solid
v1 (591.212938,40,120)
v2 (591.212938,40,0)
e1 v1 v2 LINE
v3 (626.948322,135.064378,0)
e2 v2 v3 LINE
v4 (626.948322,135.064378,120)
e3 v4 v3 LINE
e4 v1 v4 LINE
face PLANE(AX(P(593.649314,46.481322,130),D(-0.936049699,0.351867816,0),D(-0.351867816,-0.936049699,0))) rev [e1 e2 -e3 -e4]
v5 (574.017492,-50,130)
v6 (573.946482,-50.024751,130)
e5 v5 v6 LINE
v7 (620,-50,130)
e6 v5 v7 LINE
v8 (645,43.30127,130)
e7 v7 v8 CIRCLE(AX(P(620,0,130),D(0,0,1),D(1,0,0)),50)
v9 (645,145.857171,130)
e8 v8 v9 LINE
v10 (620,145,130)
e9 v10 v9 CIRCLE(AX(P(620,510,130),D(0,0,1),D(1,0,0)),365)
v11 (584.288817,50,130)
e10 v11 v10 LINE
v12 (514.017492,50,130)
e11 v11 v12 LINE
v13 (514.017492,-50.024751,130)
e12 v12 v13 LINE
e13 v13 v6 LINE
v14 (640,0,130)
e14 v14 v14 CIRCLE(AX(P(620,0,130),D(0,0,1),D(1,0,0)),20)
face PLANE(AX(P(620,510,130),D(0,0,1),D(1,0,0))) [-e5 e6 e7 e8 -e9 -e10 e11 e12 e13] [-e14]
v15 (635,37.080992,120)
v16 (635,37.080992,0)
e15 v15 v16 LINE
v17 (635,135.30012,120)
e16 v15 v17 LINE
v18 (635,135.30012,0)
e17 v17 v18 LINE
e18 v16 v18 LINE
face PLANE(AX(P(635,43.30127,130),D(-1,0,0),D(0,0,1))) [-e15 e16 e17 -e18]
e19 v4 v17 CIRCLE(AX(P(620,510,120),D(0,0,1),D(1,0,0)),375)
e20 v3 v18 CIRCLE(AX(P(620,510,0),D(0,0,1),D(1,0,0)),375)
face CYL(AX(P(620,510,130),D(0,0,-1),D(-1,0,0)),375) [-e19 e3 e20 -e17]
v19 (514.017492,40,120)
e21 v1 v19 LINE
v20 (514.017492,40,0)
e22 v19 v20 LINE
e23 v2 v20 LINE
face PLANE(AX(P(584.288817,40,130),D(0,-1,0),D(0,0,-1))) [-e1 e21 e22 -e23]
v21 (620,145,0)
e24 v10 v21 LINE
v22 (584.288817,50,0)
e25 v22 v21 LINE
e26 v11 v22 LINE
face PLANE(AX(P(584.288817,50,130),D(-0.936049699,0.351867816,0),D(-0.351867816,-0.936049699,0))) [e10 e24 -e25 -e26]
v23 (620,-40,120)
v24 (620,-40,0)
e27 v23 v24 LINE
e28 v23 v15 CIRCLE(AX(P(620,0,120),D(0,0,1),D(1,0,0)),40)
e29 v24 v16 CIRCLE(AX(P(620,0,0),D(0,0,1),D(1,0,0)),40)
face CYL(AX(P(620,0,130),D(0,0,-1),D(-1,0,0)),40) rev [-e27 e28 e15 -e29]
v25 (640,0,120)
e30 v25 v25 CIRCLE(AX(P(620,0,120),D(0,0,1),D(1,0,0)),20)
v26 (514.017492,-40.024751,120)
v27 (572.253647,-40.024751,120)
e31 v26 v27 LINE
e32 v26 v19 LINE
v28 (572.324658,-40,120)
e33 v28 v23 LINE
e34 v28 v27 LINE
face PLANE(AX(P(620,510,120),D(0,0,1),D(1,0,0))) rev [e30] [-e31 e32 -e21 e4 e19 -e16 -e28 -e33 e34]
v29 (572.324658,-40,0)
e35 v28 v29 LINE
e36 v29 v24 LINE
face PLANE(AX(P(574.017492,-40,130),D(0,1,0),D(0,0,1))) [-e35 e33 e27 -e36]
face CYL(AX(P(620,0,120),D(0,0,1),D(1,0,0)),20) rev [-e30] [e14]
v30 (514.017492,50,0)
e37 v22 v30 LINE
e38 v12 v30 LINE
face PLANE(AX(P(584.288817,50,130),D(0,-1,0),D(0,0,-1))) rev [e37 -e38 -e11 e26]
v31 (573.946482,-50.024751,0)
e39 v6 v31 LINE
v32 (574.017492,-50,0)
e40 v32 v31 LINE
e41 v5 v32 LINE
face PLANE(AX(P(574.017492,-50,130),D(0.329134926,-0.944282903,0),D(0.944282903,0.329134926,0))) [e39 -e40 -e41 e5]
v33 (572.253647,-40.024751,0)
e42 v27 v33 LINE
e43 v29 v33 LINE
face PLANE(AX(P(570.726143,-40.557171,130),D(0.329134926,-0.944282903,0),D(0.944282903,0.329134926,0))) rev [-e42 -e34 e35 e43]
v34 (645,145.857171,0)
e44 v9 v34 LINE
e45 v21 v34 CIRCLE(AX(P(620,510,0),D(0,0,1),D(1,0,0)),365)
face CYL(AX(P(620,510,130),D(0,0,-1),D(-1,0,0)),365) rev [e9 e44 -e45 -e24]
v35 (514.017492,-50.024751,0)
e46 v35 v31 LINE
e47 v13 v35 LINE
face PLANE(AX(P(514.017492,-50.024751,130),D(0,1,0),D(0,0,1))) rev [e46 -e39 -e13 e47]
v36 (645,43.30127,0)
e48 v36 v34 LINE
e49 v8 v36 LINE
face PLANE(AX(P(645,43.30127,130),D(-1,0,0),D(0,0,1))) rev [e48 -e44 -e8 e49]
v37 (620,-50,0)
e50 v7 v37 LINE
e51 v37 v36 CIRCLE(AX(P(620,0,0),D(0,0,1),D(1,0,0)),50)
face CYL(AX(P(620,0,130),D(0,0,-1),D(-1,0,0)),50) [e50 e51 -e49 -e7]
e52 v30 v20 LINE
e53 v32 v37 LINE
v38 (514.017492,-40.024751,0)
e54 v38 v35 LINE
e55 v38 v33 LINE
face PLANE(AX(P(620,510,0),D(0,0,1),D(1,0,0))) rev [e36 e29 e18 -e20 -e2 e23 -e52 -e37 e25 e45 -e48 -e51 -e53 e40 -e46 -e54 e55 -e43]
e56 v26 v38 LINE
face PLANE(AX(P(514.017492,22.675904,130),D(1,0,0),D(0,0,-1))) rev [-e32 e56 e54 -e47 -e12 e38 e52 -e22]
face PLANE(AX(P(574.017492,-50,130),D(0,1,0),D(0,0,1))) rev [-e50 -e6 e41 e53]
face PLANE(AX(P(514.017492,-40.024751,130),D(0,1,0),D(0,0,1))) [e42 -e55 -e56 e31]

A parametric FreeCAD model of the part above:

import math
import FreeCAD as App
import Part
import Sketcher


def faces_at(feature, points):
    """Names of the faces that lie closest to the given points."""
    faces = feature.Shape.Faces
    near = lambda p: min(range(len(faces)), key=lambda i: faces[i].distToShape(Part.Vertex(*p))[0])
    return sorted({f"Face{near(p) + 1}" for p in points})

doc = App.newDocument("Part")
body = doc.addObject("PartDesign::Body", "Body")

sketch1 = doc.addObject("Sketcher::SketchObject", "Sketch")
body.addObject(sketch1)
sketch1.AttachmentSupport = (doc.XY_Plane, [""])
sketch1.MapMode = "FlatFace"
sketch1.addGeometry([
    Part.LineSegment(App.Vector(574.02, -50, 0), App.Vector(620, -50, 0)),
    Part.ArcOfCircle(Part.Circle(App.Vector(620, 0, 0), App.Vector(0, 0, 1), 50), math.radians(-90), math.radians(60)),
    Part.LineSegment(App.Vector(645, 43.3, 0), App.Vector(645, 145.86, 0)),
    Part.ArcOfCircle(Part.Circle(App.Vector(620, 510, 0), App.Vector(0, 0, 1), 365), math.radians(-90), math.radians(-86.07)),
    Part.LineSegment(App.Vector(620, 145, 0), App.Vector(584.29, 50, 0)),
    Part.LineSegment(App.Vector(584.29, 50, 0), App.Vector(514.02, 50, 0)),
    Part.LineSegment(App.Vector(514.02, 50, 0), App.Vector(514.02, -50.02, 0)),
    Part.LineSegment(App.Vector(514.02, -50.02, 0), App.Vector(573.95, -50.02, 0)),
    Part.LineSegment(App.Vector(573.95, -50.02, 0), App.Vector(574.02, -50, 0)),
], False)
sketch1.addConstraint([
    Sketcher.Constraint("Tangent", 0, 2, 1, 1),
    Sketcher.Constraint("Coincident", 1, 2, 2, 1),
    Sketcher.Constraint("Coincident", 2, 2, 3, 2),
    Sketcher.Constraint("Coincident", 3, 1, 4, 1),
    Sketcher.Constraint("Coincident", 4, 2, 5, 1),
    Sketcher.Constraint("Coincident", 5, 2, 6, 1),
    Sketcher.Constraint("Coincident", 6, 2, 7, 1),
    Sketcher.Constraint("Coincident", 7, 2, 8, 1),
    Sketcher.Constraint("Coincident", 8, 2, 0, 1),
    Sketcher.Constraint("Horizontal", 0),
    Sketcher.Constraint("Vertical", 2),
    Sketcher.Constraint("Horizontal", 5),
    Sketcher.Constraint("Vertical", 6),
    Sketcher.Constraint("Horizontal", 7),
    Sketcher.Constraint("PointOnObject", 1, 3, -1),
    Sketcher.Constraint("Vertical", 1, 3, 3, 3),
    Sketcher.Constraint("Vertical", 0, 2, 3, 1),
    Sketcher.Constraint("Radius", 1, 50.0),
    Sketcher.Constraint("Radius", 3, 365.000001),
    Sketcher.Constraint("DistanceX", -1, 1, 1, 3, 620.0),
    Sketcher.Constraint("DistanceY", -1, 1, 3, 3, 510.000001),
    Sketcher.Constraint("DistanceX", -1, 1, 1, 2, 645.0),
    Sketcher.Constraint("DistanceY", -1, 1, 4, 2, 50.0),
    Sketcher.Constraint("DistanceX", 6, 2, 8, 2, 60.0),
    Sketcher.Constraint("Distance", 8, 0.0752),
    Sketcher.Constraint("DistanceX", 7, 1, 7, 2, 59.928989),
    Sketcher.Constraint("DistanceX", 0, 1, 0, 2, 45.982508),
    Sketcher.Constraint("DistanceX", 5, 2, 5, 1, 70.271324),
])
pad1 = doc.addObject("PartDesign::Pad", "Pad")
body.addObject(pad1)
pad1.Profile = sketch1
pad1.Length = 130
doc.recompute()

thickness = doc.addObject("PartDesign::Thickness", "Thickness")
body.addObject(thickness)
thickness.Base = (pad1, faces_at(pad1, [(592.009, 47.916, 0)]))
thickness.Value = 10
thickness.Reversed = True
thickness.Join = "Intersection"

sketch2 = doc.addObject("Sketcher::SketchObject", "Sketch001")
body.addObject(sketch2)
sketch2.AttachmentSupport = (doc.XY_Plane, [""])
sketch2.MapMode = "FlatFace"
sketch2.addGeometry([
    Part.LineSegment(App.Vector(524, 40, 0), App.Vector(524, -40, 0)),
    Part.LineSegment(App.Vector(524, -40, 0), App.Vector(514, -40, 0)),
    Part.LineSegment(App.Vector(514, -40, 0), App.Vector(514, 40, 0)),
    Part.LineSegment(App.Vector(514, 40, 0), App.Vector(524, 40, 0)),
], False)
sketch2.addConstraint([
    Sketcher.Constraint("Coincident", 0, 2, 1, 1),
    Sketcher.Constraint("Coincident", 1, 2, 2, 1),
    Sketcher.Constraint("Coincident", 2, 2, 3, 1),
    Sketcher.Constraint("Coincident", 3, 2, 0, 1),
    Sketcher.Constraint("Vertical", 0),
    Sketcher.Constraint("Horizontal", 1),
    Sketcher.Constraint("Vertical", 2),
    Sketcher.Constraint("Horizontal", 3),
    Sketcher.Constraint("DistanceX", 1, 2, 1, 1, 10.0),
    Sketcher.Constraint("DistanceY", -1, 1, 2, 2, 40.0),
    Sketcher.Constraint("DistanceY", 0, 2, 0, 1, 80.024751),
    Sketcher.Constraint("DistanceX", -1, 1, 0, 2, 524.017492),
])
pocket1 = doc.addObject("PartDesign::Pocket", "Pocket")
body.addObject(pocket1)
pocket1.Profile = sketch2
pocket1.Length = 120
pocket1.Reversed = True

sketch3 = doc.addObject("Sketcher::SketchObject", "Sketch002")
body.addObject(sketch3)
sketch3.AttachmentSupport = (doc.XY_Plane, [""])
sketch3.MapMode = "FlatFace"
sketch3.AttachmentOffset = App.Placement(App.Vector(0, 0, 130), App.Rotation())
sketch3.addGeometry(Part.Circle(App.Vector(620, 0, 0), App.Vector(0, 0, 1), 20), False)
sketch3.addConstraint([
    Sketcher.Constraint("PointOnObject", 0, 3, -1),
    Sketcher.Constraint("Diameter", 0, 40.0),
    Sketcher.Constraint("DistanceX", -1, 1, 0, 3, 620.0),
])
pocket2 = doc.addObject("PartDesign::Pocket", "Pocket001")
body.addObject(pocket2)
pocket2.Profile = sketch3
pocket2.Length = 10

doc.recompute()
